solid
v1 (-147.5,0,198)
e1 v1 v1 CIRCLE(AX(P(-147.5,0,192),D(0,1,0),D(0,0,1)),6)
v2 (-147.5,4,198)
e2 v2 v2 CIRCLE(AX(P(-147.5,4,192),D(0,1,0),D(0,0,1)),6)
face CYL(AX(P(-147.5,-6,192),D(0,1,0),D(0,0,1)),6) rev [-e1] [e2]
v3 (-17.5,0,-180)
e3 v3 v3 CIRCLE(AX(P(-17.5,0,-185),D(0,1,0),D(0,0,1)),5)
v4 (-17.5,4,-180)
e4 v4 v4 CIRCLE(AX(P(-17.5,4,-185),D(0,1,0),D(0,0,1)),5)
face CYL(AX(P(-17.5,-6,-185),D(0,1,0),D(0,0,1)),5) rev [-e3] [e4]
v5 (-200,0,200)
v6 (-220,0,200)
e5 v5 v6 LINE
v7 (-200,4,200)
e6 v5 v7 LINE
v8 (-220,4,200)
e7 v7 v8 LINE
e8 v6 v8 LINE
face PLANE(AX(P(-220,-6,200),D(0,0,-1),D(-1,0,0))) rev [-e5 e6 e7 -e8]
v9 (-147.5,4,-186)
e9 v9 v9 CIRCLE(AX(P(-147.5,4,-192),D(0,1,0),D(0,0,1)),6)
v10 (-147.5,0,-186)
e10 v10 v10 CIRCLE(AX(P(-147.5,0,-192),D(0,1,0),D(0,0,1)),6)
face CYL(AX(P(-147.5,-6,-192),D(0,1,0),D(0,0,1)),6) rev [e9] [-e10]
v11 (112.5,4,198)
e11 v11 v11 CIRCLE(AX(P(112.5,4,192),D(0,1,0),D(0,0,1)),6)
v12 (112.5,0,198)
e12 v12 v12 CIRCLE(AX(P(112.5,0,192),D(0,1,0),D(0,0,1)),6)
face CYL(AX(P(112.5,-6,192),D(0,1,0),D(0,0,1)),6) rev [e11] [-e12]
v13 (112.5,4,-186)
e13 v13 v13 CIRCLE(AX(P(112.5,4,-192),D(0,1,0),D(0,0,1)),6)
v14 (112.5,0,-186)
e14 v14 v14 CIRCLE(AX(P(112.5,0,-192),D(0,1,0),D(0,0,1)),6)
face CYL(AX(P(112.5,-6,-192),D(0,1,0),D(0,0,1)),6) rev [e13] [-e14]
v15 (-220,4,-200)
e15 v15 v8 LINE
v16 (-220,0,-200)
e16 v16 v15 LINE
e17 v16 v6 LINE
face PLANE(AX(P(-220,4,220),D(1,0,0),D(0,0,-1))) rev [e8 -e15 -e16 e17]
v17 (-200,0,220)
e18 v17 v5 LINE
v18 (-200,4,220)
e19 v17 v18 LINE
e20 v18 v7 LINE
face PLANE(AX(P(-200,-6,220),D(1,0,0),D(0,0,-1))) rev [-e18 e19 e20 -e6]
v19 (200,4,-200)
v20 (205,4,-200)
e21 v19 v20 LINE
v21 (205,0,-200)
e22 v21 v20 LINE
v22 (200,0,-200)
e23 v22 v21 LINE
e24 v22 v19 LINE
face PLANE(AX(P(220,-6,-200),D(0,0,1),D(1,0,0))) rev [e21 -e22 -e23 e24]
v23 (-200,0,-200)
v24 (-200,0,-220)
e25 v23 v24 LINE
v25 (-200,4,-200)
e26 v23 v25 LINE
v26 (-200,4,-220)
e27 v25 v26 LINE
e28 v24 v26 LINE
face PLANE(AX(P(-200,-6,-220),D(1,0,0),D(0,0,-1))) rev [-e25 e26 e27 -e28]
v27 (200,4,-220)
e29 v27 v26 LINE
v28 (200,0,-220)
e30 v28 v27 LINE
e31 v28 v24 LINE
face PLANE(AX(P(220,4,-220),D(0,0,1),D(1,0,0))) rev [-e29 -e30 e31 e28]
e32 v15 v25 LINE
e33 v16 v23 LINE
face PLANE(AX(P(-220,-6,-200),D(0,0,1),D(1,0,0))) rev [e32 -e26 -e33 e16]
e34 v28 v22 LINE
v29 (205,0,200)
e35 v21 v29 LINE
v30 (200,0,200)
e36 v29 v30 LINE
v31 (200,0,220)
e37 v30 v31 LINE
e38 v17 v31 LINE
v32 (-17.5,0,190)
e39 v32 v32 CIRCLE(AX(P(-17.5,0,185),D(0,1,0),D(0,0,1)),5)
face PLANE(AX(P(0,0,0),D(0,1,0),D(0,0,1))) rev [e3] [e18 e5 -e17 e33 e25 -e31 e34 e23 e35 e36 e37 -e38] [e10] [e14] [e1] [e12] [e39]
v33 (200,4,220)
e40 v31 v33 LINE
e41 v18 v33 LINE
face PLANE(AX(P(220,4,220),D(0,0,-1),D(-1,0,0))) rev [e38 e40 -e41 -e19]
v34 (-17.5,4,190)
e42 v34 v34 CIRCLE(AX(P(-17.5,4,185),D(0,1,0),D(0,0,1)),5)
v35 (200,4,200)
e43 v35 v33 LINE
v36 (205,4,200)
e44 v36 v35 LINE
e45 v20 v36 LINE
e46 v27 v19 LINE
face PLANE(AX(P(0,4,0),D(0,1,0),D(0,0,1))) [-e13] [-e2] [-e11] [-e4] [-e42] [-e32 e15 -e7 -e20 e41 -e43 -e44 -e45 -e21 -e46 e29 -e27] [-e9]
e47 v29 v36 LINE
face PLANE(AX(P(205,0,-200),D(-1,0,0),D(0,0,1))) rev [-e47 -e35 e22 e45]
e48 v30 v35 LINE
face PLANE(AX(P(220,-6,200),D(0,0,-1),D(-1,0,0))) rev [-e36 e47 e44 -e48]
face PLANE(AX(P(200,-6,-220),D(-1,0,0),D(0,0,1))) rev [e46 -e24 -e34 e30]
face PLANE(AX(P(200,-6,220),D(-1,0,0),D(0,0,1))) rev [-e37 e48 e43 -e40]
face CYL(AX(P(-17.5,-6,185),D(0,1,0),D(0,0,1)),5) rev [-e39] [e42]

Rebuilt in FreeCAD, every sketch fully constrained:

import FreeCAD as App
import Part
import Sketcher

doc = App.newDocument("Part")
body = doc.addObject("PartDesign::Body", "Body")

# Sketch on XZ plane
sketch1 = body.newObject("Sketcher::SketchObject", "Sketch")
sketch1.AttachmentSupport = (doc.getObject("XZ_Plane"), [""])
sketch1.MapMode = "FlatFace"
sketch1.addGeometry([
    Part.LineSegment(App.Vector(-220, -220, 0), App.Vector(-220, 220, 0)),
    Part.LineSegment(App.Vector(-220, 220, 0), App.Vector(220, 220, 0)),
    Part.LineSegment(App.Vector(220, 220, 0), App.Vector(220, -220, 0)),
    Part.LineSegment(App.Vector(220, -220, 0), App.Vector(-220, -220, 0)),
], False)
sketch1.addConstraint([
    Sketcher.Constraint("Coincident", 0, 2, 1, 1),
    Sketcher.Constraint("Coincident", 1, 2, 2, 1),
    Sketcher.Constraint("Coincident", 2, 2, 3, 1),
    Sketcher.Constraint("Coincident", 3, 2, 0, 1),
    Sketcher.Constraint("Vertical", 0),
    Sketcher.Constraint("Horizontal", 1),
    Sketcher.Constraint("Vertical", 2),
    Sketcher.Constraint("Horizontal", 3),
    Sketcher.Constraint("Symmetric", 0, 2, 2, 2, -1, 1),
    Sketcher.Constraint("Equal", 3, 0),
    Sketcher.Constraint("DistanceX", 1, 1, 1, 2, 440.0),
])
pad1 = body.newObject("PartDesign::Pad", "Pad")
pad1.Profile = sketch1
pad1.Length = 4
pad1.Reversed = True

# Sketch on XZ plane
sketch2 = body.newObject("Sketcher::SketchObject", "Sketch001")
sketch2.AttachmentSupport = (doc.getObject("XZ_Plane"), [""])
sketch2.MapMode = "FlatFace"
sketch2.AttachmentOffset = App.Placement(App.Vector(0, 0, -4), App.Rotation())
sketch2.addGeometry([
    Part.LineSegment(App.Vector(-220, 200, 0), App.Vector(-220, 220, 0)),  # 0
    Part.LineSegment(App.Vector(-220, 220, 0), App.Vector(-200, 220, 0)),  # 1
    Part.LineSegment(App.Vector(-200, 220, 0), App.Vector(-200, 200, 0)),  # 2
    Part.LineSegment(App.Vector(-200, 200, 0), App.Vector(-220, 200, 0)),  # 3
    Part.LineSegment(App.Vector(200, 200, 0), App.Vector(200, 220, 0)),  # 4
    Part.LineSegment(App.Vector(200, 220, 0), App.Vector(220, 220, 0)),  # 5
    Part.LineSegment(App.Vector(220, 220, 0), App.Vector(220, 200, 0)),  # 6
    Part.LineSegment(App.Vector(220, 200, 0), App.Vector(200, 200, 0)),  # 7
    Part.LineSegment(App.Vector(200, -220, 0), App.Vector(200, -200, 0)),  # 8
    Part.LineSegment(App.Vector(200, -200, 0), App.Vector(220, -200, 0)),  # 9
    Part.LineSegment(App.Vector(220, -200, 0), App.Vector(220, -220, 0)),  # 10
    Part.LineSegment(App.Vector(220, -220, 0), App.Vector(200, -220, 0)),  # 11
    Part.LineSegment(App.Vector(-220, -220, 0), App.Vector(-220, -200, 0)),  # 12
    Part.LineSegment(App.Vector(-220, -200, 0), App.Vector(-200, -200, 0)),  # 13
    Part.LineSegment(App.Vector(-200, -200, 0), App.Vector(-200, -220, 0)),  # 14
    Part.LineSegment(App.Vector(-200, -220, 0), App.Vector(-220, -220, 0)),  # 15
], False)
sketch2.addConstraint([
    Sketcher.Constraint("Coincident", 0, 2, 1, 1),
    Sketcher.Constraint("Coincident", 1, 2, 2, 1),
    Sketcher.Constraint("Coincident", 2, 2, 3, 1),
    Sketcher.Constraint("Coincident", 3, 2, 0, 1),
    Sketcher.Constraint("Coincident", 4, 2, 5, 1),
    Sketcher.Constraint("Coincident", 5, 2, 6, 1),
    Sketcher.Constraint("Coincident", 6, 2, 7, 1),
    Sketcher.Constraint("Coincident", 7, 2, 4, 1),
    Sketcher.Constraint("Coincident", 8, 2, 9, 1),
    Sketcher.Constraint("Coincident", 9, 2, 10, 1),
    Sketcher.Constraint("Coincident", 10, 2, 11, 1),
    Sketcher.Constraint("Coincident", 11, 2, 8, 1),
    Sketcher.Constraint("Coincident", 12, 2, 13, 1),
    Sketcher.Constraint("Coincident", 13, 2, 14, 1),
    Sketcher.Constraint("Coincident", 14, 2, 15, 1),
    Sketcher.Constraint("Coincident", 15, 2, 12, 1),
    Sketcher.Constraint("Vertical", 0),
    Sketcher.Constraint("Horizontal", 1),
    Sketcher.Constraint("Vertical", 2),
    Sketcher.Constraint("Horizontal", 3),
    Sketcher.Constraint("Vertical", 4),
    Sketcher.Constraint("Horizontal", 5),
    Sketcher.Constraint("Vertical", 6),
    Sketcher.Constraint("Horizontal", 7),
    Sketcher.Constraint("Vertical", 8),
    Sketcher.Constraint("Horizontal", 9),
    Sketcher.Constraint("Vertical", 10),
    Sketcher.Constraint("Horizontal", 11),
    Sketcher.Constraint("Vertical", 12),
    Sketcher.Constraint("Horizontal", 13),
    Sketcher.Constraint("Vertical", 14),
    Sketcher.Constraint("Horizontal", 15),
    Sketcher.Constraint("Symmetric", 2, 2, 8, 2, -1, 1),
    Sketcher.Constraint("Symmetric", 0, 2, 10, 2, -1, 1),
    Sketcher.Constraint("Symmetric", 6, 2, 12, 2, -1, 1),
    Sketcher.Constraint("Symmetric", 4, 2, 14, 2, -1, 1),
    Sketcher.Constraint("Symmetric", 1, 2, 4, 2, -2),
    Sketcher.Constraint("Symmetric", 3, 2, 6, 2, -2),
    Sketcher.Constraint("Equal", 15, 0),
    Sketcher.Constraint("DistanceX", 1, 1, 1, 2, 20.0),
    Sketcher.Constraint("DistanceX", 0, 2, -1, 1, 220.0),
    Sketcher.Constraint("DistanceY", -1, 1, 0, 2, 220.0),
])
pocket1 = body.newObject("PartDesign::Pocket", "Pocket")
pocket1.Profile = sketch2
pocket1.Length = 10
pocket1.Reversed = True

# Sketch on XZ plane
sketch3 = body.newObject("Sketcher::SketchObject", "Sketch002")
sketch3.AttachmentSupport = (doc.getObject("XZ_Plane"), [""])
sketch3.MapMode = "FlatFace"
sketch3.AttachmentOffset = App.Placement(App.Vector(0, 0, -4), App.Rotation())
sketch3.addGeometry([
    Part.Circle(App.Vector(-148, -192, 0), App.Vector(0, 0, 1), 6),  # 0
    Part.Circle(App.Vector(112, -192, 0), App.Vector(0, 0, 1), 6),  # 1
    Part.Circle(App.Vector(-18, -185, 0), App.Vector(0, 0, 1), 5),  # 2
    Part.Circle(App.Vector(112, 192, 0), App.Vector(0, 0, 1), 6),  # 3
    Part.Circle(App.Vector(-18, 185, 0), App.Vector(0, 0, 1), 5),  # 4
    Part.Circle(App.Vector(-148, 192, 0), App.Vector(0, 0, 1), 6),  # 5
], False)
sketch3.addConstraint([
    Sketcher.Constraint("Equal", 0, 1),
    Sketcher.Constraint("Equal", 1, 3),
    Sketcher.Constraint("Equal", 2, 4),
    Sketcher.Constraint("Equal", 3, 5),
    Sketcher.Constraint("Symmetric", 1, 3, 3, 3, -1),
    Sketcher.Constraint("Symmetric", 2, 3, 4, 3, -1),
    Sketcher.Constraint("Symmetric", 0, 3, 5, 3, -1),
    Sketcher.Constraint("Horizontal", 0, 3, 1, 3),
    Sketcher.Constraint("Diameter", 0, 12.0),
    Sketcher.Constraint("Diameter", 2, 10.0),
    Sketcher.Constraint("DistanceY", 0, 3, -1, 1, 192.0),
    Sketcher.Constraint("DistanceY", 2, 3, -1, 1, 185.0),
    Sketcher.Constraint("DistanceX", 0, 3, 1, 3, 260.0),
    Sketcher.Constraint("DistanceX", 0, 3, 2, 3, 130.0),
    Sketcher.Constraint("DistanceX", 0, 3, -1, 1, 147.5),
])
pocket2 = body.newObject("PartDesign::Pocket", "Pocket001")
pocket2.Profile = sketch3
pocket2.Length = 10
pocket2.Reversed = True

# Sketch on XZ plane
sketch4 = body.newObject("Sketcher::SketchObject", "Sketch003")
sketch4.AttachmentSupport = (doc.getObject("XZ_Plane"), [""])
sketch4.MapMode = "FlatFace"
sketch4.AttachmentOffset = App.Placement(App.Vector(0, 0, -4), App.Rotation())
sketch4.addGeometry([
    Part.LineSegment(App.Vector(205, -200, 0), App.Vector(205, 200, 0)),
    Part.LineSegment(App.Vector(205, 200, 0), App.Vector(220, 200, 0)),
    Part.LineSegment(App.Vector(220, 200, 0), App.Vector(220, -200, 0)),
    Part.LineSegment(App.Vector(220, -200, 0), App.Vector(205, -200, 0)),
], False)
sketch4.addConstraint([
    Sketcher.Constraint("Coincident", 0, 2, 1, 1),
    Sketcher.Constraint("Coincident", 1, 2, 2, 1),
    Sketcher.Constraint("Coincident", 2, 2, 3, 1),
    Sketcher.Constraint("Coincident", 3, 2, 0, 1),
    Sketcher.Constraint("Vertical", 0),
    Sketcher.Constraint("Horizontal", 1),
    Sketcher.Constraint("Vertical", 2),
    Sketcher.Constraint("Horizontal", 3),
    Sketcher.Constraint("DistanceX", 1, 1, 1, 2, 15.0),
    Sketcher.Constraint("DistanceY", 0, 1, 0, 2, 400.0),
    Sketcher.Constraint("DistanceX", -1, 1, 0, 2, 205.0),
    Sketcher.Constraint("DistanceY", -1, 1, 0, 2, 200.0),
])
pocket3 = body.newObject("PartDesign::Pocket", "Pocket002")
pocket3.Profile = sketch4
pocket3.Type = "ThroughAll"
pocket3.Reversed = True

doc.recompute()
